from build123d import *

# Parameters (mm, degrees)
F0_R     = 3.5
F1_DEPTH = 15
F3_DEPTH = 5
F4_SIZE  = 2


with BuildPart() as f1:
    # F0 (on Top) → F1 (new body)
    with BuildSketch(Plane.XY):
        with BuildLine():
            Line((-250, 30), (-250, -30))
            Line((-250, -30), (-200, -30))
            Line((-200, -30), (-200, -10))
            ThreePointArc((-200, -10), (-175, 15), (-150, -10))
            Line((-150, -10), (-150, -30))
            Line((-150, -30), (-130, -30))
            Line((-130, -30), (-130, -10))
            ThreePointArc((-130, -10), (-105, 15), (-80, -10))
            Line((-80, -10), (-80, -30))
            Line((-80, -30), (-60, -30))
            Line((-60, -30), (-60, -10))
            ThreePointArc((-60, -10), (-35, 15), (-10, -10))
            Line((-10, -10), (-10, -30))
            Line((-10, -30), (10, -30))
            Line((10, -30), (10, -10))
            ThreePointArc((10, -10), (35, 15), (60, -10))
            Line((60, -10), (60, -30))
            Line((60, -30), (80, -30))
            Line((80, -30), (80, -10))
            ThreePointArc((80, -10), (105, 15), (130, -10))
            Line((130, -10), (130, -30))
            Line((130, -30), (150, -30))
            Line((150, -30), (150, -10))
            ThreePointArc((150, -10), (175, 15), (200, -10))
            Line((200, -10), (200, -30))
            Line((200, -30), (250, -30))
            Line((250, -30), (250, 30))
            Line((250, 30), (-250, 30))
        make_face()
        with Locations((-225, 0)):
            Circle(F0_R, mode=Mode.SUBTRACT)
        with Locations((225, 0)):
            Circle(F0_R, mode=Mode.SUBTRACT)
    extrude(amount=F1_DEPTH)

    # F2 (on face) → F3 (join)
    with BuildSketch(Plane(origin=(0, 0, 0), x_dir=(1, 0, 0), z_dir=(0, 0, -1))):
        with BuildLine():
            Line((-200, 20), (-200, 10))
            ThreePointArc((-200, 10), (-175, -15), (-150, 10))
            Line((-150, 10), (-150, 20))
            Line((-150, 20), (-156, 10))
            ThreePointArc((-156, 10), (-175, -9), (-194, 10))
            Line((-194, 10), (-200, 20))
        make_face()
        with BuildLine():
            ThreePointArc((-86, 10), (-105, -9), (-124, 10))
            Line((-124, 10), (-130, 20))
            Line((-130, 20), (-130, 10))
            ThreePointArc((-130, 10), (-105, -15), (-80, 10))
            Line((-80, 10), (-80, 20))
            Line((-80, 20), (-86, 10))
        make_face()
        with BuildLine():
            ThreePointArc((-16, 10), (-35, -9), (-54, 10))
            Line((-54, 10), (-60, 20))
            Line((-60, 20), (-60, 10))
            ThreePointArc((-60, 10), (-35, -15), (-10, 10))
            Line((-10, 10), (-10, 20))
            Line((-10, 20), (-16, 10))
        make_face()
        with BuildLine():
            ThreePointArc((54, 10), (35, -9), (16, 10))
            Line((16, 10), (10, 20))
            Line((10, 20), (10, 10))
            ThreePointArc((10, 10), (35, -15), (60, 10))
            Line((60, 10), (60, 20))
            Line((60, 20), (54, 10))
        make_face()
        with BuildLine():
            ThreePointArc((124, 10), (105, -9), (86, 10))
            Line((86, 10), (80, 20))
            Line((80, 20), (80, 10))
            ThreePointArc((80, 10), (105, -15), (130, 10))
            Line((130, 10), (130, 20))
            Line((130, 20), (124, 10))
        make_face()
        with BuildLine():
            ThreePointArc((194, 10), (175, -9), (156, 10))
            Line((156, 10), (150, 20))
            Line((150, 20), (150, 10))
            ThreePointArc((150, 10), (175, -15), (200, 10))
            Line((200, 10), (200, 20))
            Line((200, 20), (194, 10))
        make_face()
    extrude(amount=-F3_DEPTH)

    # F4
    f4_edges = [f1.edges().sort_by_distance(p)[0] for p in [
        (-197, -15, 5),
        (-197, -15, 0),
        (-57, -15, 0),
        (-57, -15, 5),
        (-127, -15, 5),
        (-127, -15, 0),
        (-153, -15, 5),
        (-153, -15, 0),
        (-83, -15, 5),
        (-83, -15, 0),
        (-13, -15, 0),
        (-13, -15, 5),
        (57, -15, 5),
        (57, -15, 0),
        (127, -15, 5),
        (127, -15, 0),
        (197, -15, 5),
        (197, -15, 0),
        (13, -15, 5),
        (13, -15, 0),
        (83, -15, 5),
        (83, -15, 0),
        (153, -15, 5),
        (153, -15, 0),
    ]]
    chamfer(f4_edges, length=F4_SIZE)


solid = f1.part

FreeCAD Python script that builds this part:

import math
import FreeCAD as App
import Part
import Sketcher
Q = App.Units.Quantity


def edges_at(feature, points):
    """Names of the edges that pass closest to the given points."""
    edges = feature.Shape.Edges
    near = lambda p: min(range(len(edges)), key=lambda i: edges[i].distToShape(Part.Vertex(*p))[0])
    return sorted({f"Edge{near(p) + 1}" for p in points})

doc = App.newDocument("Part")
params = doc.addObject("Spreadsheet::Sheet", "Params")
for row, (alias, value) in enumerate([
    ("sketch1_diameter", "7 mm"),
    ("sketch1_radius", "25 mm"),
    ("sketch1_width", "50 mm"),
    ("sketch1_width2", "20 mm"),
    ("sketch1_height", "60 mm"),
    ("pad1_length", "15 mm"),
    ("sketch2_radius", "25 mm"),
    ("sketch2_radius2", "19 mm"),
    ("sketch2_height", "10 mm"),
    ("pad2_length", "5 mm"),
    ("chamfer_size", "2 mm"),
], start=1):
    params.set(f"A{row}", alias)
    params.set(f"B{row}", "=" + value)
    params.setAlias(f"B{row}", alias)

body = doc.addObject("PartDesign::Body", "Body")

# Sketch on XY plane
sketch1 = body.newObject("Sketcher::SketchObject", "Sketch")
sketch1.AttachmentSupport = (doc.getObject("XY_Plane"), [""])
sketch1.MapMode = "FlatFace"
sketch1.addGeometry([
    Part.LineSegment(App.Vector(-250, 30, 0), App.Vector(-250, -30, 0)),  # 0
    Part.LineSegment(App.Vector(-250, -30, 0), App.Vector(-200, -30, 0)),  # 1
    Part.LineSegment(App.Vector(-200, -30, 0), App.Vector(-200, -10, 0)),  # 2
    Part.ArcOfCircle(Part.Circle(App.Vector(-175, -10, 0), App.Vector(0, 0, 1), 25), math.radians(0), math.radians(180)),  # 3
    Part.LineSegment(App.Vector(-150, -10, 0), App.Vector(-150, -30, 0)),  # 4
    Part.LineSegment(App.Vector(-150, -30, 0), App.Vector(-130, -30, 0)),  # 5
    Part.LineSegment(App.Vector(-130, -30, 0), App.Vector(-130, -10, 0)),  # 6
    Part.ArcOfCircle(Part.Circle(App.Vector(-105, -10, 0), App.Vector(0, 0, 1), 25), math.radians(0), math.radians(180)),  # 7
    Part.LineSegment(App.Vector(-80, -10, 0), App.Vector(-80, -30, 0)),  # 8
    Part.LineSegment(App.Vector(-80, -30, 0), App.Vector(-60, -30, 0)),  # 9
    Part.LineSegment(App.Vector(-60, -30, 0), App.Vector(-60, -10, 0)),  # 10
    Part.ArcOfCircle(Part.Circle(App.Vector(-35, -10, 0), App.Vector(0, 0, 1), 25), math.radians(0), math.radians(180)),  # 11
    Part.LineSegment(App.Vector(-10, -10, 0), App.Vector(-10, -30, 0)),  # 12
    Part.LineSegment(App.Vector(-10, -30, 0), App.Vector(10, -30, 0)),  # 13
    Part.LineSegment(App.Vector(10, -30, 0), App.Vector(10, -10, 0)),  # 14
    Part.ArcOfCircle(Part.Circle(App.Vector(35, -10, 0), App.Vector(0, 0, 1), 25), math.radians(0), math.radians(180)),  # 15
    Part.LineSegment(App.Vector(60, -10, 0), App.Vector(60, -30, 0)),  # 16
    Part.LineSegment(App.Vector(60, -30, 0), App.Vector(80, -30, 0)),  # 17
    Part.LineSegment(App.Vector(80, -30, 0), App.Vector(80, -10, 0)),  # 18
    Part.ArcOfCircle(Part.Circle(App.Vector(105, -10, 0), App.Vector(0, 0, 1), 25), math.radians(0), math.radians(180)),  # 19
    Part.LineSegment(App.Vector(130, -10, 0), App.Vector(130, -30, 0)),  # 20
    Part.LineSegment(App.Vector(130, -30, 0), App.Vector(150, -30, 0)),  # 21
    Part.LineSegment(App.Vector(150, -30, 0), App.Vector(150, -10, 0)),  # 22
    Part.ArcOfCircle(Part.Circle(App.Vector(175, -10, 0), App.Vector(0, 0, 1), 25), math.radians(0), math.radians(180)),  # 23
    Part.LineSegment(App.Vector(200, -10, 0), App.Vector(200, -30, 0)),  # 24
    Part.LineSegment(App.Vector(200, -30, 0), App.Vector(250, -30, 0)),  # 25
    Part.LineSegment(App.Vector(250, -30, 0), App.Vector(250, 30, 0)),  # 26
    Part.LineSegment(App.Vector(250, 30, 0), App.Vector(-250, 30, 0)),  # 27
    Part.Circle(App.Vector(-225, 0, 0), App.Vector(0, 0, 1), 3.5),  # 28
    Part.Circle(App.Vector(225, 0, 0), App.Vector(0, 0, 1), 3.5),  # 29
], False)
sketch1.addConstraint([
    Sketcher.Constraint("Coincident", 0, 2, 1, 1),
    Sketcher.Constraint("Coincident", 1, 2, 2, 1),
    Sketcher.Constraint("Tangent", 2, 2, 3, 2),
    Sketcher.Constraint("Tangent", 3, 1, 4, 1),
    Sketcher.Constraint("Coincident", 4, 2, 5, 1),
    Sketcher.Constraint("Coincident", 5, 2, 6, 1),
    Sketcher.Constraint("Tangent", 6, 2, 7, 2),
    Sketcher.Constraint("Tangent", 7, 1, 8, 1),
    Sketcher.Constraint("Coincident", 8, 2, 9, 1),
    Sketcher.Constraint("Coincident", 9, 2, 10, 1),
    Sketcher.Constraint("Tangent", 10, 2, 11, 2),
    Sketcher.Constraint("Tangent", 11, 1, 12, 1),
    Sketcher.Constraint("Coincident", 12, 2, 13, 1),
    Sketcher.Constraint("Coincident", 13, 2, 14, 1),
    Sketcher.Constraint("Tangent", 14, 2, 15, 2),
    Sketcher.Constraint("Tangent", 15, 1, 16, 1),
    Sketcher.Constraint("Coincident", 16, 2, 17, 1),
    Sketcher.Constraint("Coincident", 17, 2, 18, 1),
    Sketcher.Constraint("Tangent", 18, 2, 19, 2),
    Sketcher.Constraint("Tangent", 19, 1, 20, 1),
    Sketcher.Constraint("Coincident", 20, 2, 21, 1),
    Sketcher.Constraint("Coincident", 21, 2, 22, 1),
    Sketcher.Constraint("Tangent", 22, 2, 23, 2),
    Sketcher.Constraint("Tangent", 23, 1, 24, 1),
    Sketcher.Constraint("Coincident", 24, 2, 25, 1),
    Sketcher.Constraint("Coincident", 25, 2, 26, 1),
    Sketcher.Constraint("Coincident", 26, 2, 27, 1),
    Sketcher.Constraint("Coincident", 27, 2, 0, 1),
    Sketcher.Constraint("Vertical", 0),
    Sketcher.Constraint("Horizontal", 1),
    Sketcher.Constraint("Vertical", 2),
    Sketcher.Constraint("Vertical", 4),
    Sketcher.Constraint("Horizontal", 5),
    Sketcher.Constraint("Vertical", 6),
    Sketcher.Constraint("Vertical", 8),
    Sketcher.Constraint("Horizontal", 9),
    Sketcher.Constraint("Vertical", 10),
    Sketcher.Constraint("Vertical", 12),
    Sketcher.Constraint("Horizontal", 13),
    Sketcher.Constraint("Vertical", 14),
    Sketcher.Constraint("Vertical", 16),
    Sketcher.Constraint("Horizontal", 17),
    Sketcher.Constraint("Vertical", 18),
    Sketcher.Constraint("Vertical", 20),
    Sketcher.Constraint("Horizontal", 21),
    Sketcher.Constraint("Vertical", 22),
    Sketcher.Constraint("Vertical", 24),
    Sketcher.Constraint("Horizontal", 25),
    Sketcher.Constraint("Vertical", 26),
    Sketcher.Constraint("Horizontal", 27),
    Sketcher.Constraint("Equal", 3, 7),
    Sketcher.Constraint("Equal", 7, 11),
    Sketcher.Constraint("Equal", 11, 15),
    Sketcher.Constraint("Equal", 15, 19),
    Sketcher.Constraint("Equal", 19, 23),
    Sketcher.Constraint("Equal", 28, 29),
    Sketcher.Constraint("Symmetric", 28, 3, 29, 3, -1, 1),
    Sketcher.Constraint("Symmetric", 0, 2, 26, 2, -1, 1),
    Sketcher.Constraint("Symmetric", 11, 3, 15, 3, -2),
    Sketcher.Constraint("Symmetric", 7, 3, 19, 3, -2),
    Sketcher.Constraint("Symmetric", 3, 3, 23, 3, -2),
    Sketcher.Constraint("PointOnObject", 28, 3, -1),
    Sketcher.Constraint("Horizontal", 3, 3, 7, 3),
    Sketcher.Constraint("Horizontal", 7, 3, 11, 3),
    Sketcher.Constraint("Horizontal", 1, 2, 4, 2),
    Sketcher.Constraint("Horizontal", 5, 2, 8, 2),
    Sketcher.Constraint("Horizontal", 9, 2, 12, 2),
    Sketcher.Constraint("Horizontal", 13, 2, 16, 2),
    Sketcher.Constraint("Horizontal", 17, 2, 20, 2),
    Sketcher.Constraint("Horizontal", 21, 2, 24, 2),
    Sketcher.Constraint("Equal", 5, 9),
    Sketcher.Constraint("Equal", 9, 13),
    Sketcher.Constraint("Equal", 21, 2),
    Sketcher.Constraint("Diameter", 28, Q("7 mm")),
    Sketcher.Constraint("Radius", 3, Q("25 mm")),
    Sketcher.Constraint("DistanceX", 1, 1, 1, 2, Q("50 mm")),
    Sketcher.Constraint("DistanceX", 5, 1, 5, 2, Q("20 mm")),
    Sketcher.Constraint("DistanceY", 0, 2, 0, 1, Q("60 mm")),
    Sketcher.Constraint("DistanceX", 28, 3, -1, 1, Q("225 mm")),
])
sketch1.setExpression("Constraints[73]", "Params.sketch1_diameter")
sketch1.setExpression("Constraints[74]", "Params.sketch1_radius")
sketch1.setExpression("Constraints[75]", "Params.sketch1_width")
sketch1.setExpression("Constraints[76]", "Params.sketch1_width2")
sketch1.setExpression("Constraints[77]", "Params.sketch1_height")
pad1 = body.newObject("PartDesign::Pad", "Pad")
pad1.Profile = sketch1
pad1.setExpression("Length", "Params.pad1_length")

# Sketch on XY plane
sketch2 = body.newObject("Sketcher::SketchObject", "Sketch001")
sketch2.AttachmentSupport = (doc.getObject("XY_Plane"), [""])
sketch2.MapMode = "FlatFace"
sketch2.addGeometry([
    Part.LineSegment(App.Vector(-200, -20, 0), App.Vector(-200, -10, 0)),  # 0
    Part.ArcOfCircle(Part.Circle(App.Vector(-175, -10, 0), App.Vector(0, 0, 1), 25), math.radians(0), math.radians(180)),  # 1
    Part.LineSegment(App.Vector(-150, -10, 0), App.Vector(-150, -20, 0)),  # 2
    Part.LineSegment(App.Vector(-150, -20, 0), App.Vector(-156, -10, 0)),  # 3
    Part.ArcOfCircle(Part.Circle(App.Vector(-175, -10, 0), App.Vector(0, 0, 1), 19), math.radians(0), math.radians(180)),  # 4
    Part.LineSegment(App.Vector(-194, -10, 0), App.Vector(-200, -20, 0)),  # 5
    Part.ArcOfCircle(Part.Circle(App.Vector(-105, -10, 0), App.Vector(0, 0, 1), 19), math.radians(0), math.radians(180)),  # 6
    Part.LineSegment(App.Vector(-124, -10, 0), App.Vector(-130, -20, 0)),  # 7
    Part.LineSegment(App.Vector(-130, -20, 0), App.Vector(-130, -10, 0)),  # 8
    Part.ArcOfCircle(Part.Circle(App.Vector(-105, -10, 0), App.Vector(0, 0, 1), 25), math.radians(0), math.radians(180)),  # 9
    Part.LineSegment(App.Vector(-80, -10, 0), App.Vector(-80, -20, 0)),  # 10
    Part.LineSegment(App.Vector(-80, -20, 0), App.Vector(-86, -10, 0)),  # 11
    Part.ArcOfCircle(Part.Circle(App.Vector(-35, -10, 0), App.Vector(0, 0, 1), 19), math.radians(0), math.radians(180)),  # 12
    Part.LineSegment(App.Vector(-54, -10, 0), App.Vector(-60, -20, 0)),  # 13
    Part.LineSegment(App.Vector(-60, -20, 0), App.Vector(-60, -10, 0)),  # 14
    Part.ArcOfCircle(Part.Circle(App.Vector(-35, -10, 0), App.Vector(0, 0, 1), 25), math.radians(0), math.radians(180)),  # 15
    Part.LineSegment(App.Vector(-10, -10, 0), App.Vector(-10, -20, 0)),  # 16
    Part.LineSegment(App.Vector(-10, -20, 0), App.Vector(-16, -10, 0)),  # 17
    Part.ArcOfCircle(Part.Circle(App.Vector(35, -10, 0), App.Vector(0, 0, 1), 19), math.radians(0), math.radians(180)),  # 18
    Part.LineSegment(App.Vector(16, -10, 0), App.Vector(10, -20, 0)),  # 19
    Part.LineSegment(App.Vector(10, -20, 0), App.Vector(10, -10, 0)),  # 20
    Part.ArcOfCircle(Part.Circle(App.Vector(35, -10, 0), App.Vector(0, 0, 1), 25), math.radians(0), math.radians(180)),  # 21
    Part.LineSegment(App.Vector(60, -10, 0), App.Vector(60, -20, 0)),  # 22
    Part.LineSegment(App.Vector(60, -20, 0), App.Vector(54, -10, 0)),  # 23
    Part.ArcOfCircle(Part.Circle(App.Vector(105, -10, 0), App.Vector(0, 0, 1), 19), math.radians(0), math.radians(180)),  # 24
    Part.LineSegment(App.Vector(86, -10, 0), App.Vector(80, -20, 0)),  # 25
    Part.LineSegment(App.Vector(80, -20, 0), App.Vector(80, -10, 0)),  # 26
    Part.ArcOfCircle(Part.Circle(App.Vector(105, -10, 0), App.Vector(0, 0, 1), 25), math.radians(0), math.radians(180)),  # 27
    Part.LineSegment(App.Vector(130, -10, 0), App.Vector(130, -20, 0)),  # 28
    Part.LineSegment(App.Vector(130, -20, 0), App.Vector(124, -10, 0)),  # 29
    Part.ArcOfCircle(Part.Circle(App.Vector(175, -10, 0), App.Vector(0, 0, 1), 19), math.radians(0), math.radians(180)),  # 30
    Part.LineSegment(App.Vector(156, -10, 0), App.Vector(150, -20, 0)),  # 31
    Part.LineSegment(App.Vector(150, -20, 0), App.Vector(150, -10, 0)),  # 32
    Part.ArcOfCircle(Part.Circle(App.Vector(175, -10, 0), App.Vector(0, 0, 1), 25), math.radians(0), math.radians(180)),  # 33
    Part.LineSegment(App.Vector(200, -10, 0), App.Vector(200, -20, 0)),  # 34
    Part.LineSegment(App.Vector(200, -20, 0), App.Vector(194, -10, 0)),  # 35
], False)
sketch2.addConstraint([
    Sketcher.Constraint("Tangent", 0, 2, 1, 2),
    Sketcher.Constraint("Tangent", 1, 1, 2, 1),
    Sketcher.Constraint("Coincident", 2, 2, 3, 1),
    Sketcher.Constraint("Coincident", 3, 2, 4, 1),
    Sketcher.Constraint("Coincident", 4, 2, 5, 1),
    Sketcher.Constraint("Coincident", 5, 2, 0, 1),
    Sketcher.Constraint("Coincident", 6, 2, 7, 1),
    Sketcher.Constraint("Coincident", 7, 2, 8, 1),
    Sketcher.Constraint("Tangent", 8, 2, 9, 2),
    Sketcher.Constraint("Tangent", 9, 1, 10, 1),
    Sketcher.Constraint("Coincident", 10, 2, 11, 1),
    Sketcher.Constraint("Coincident", 11, 2, 6, 1),
    Sketcher.Constraint("Coincident", 12, 2, 13, 1),
    Sketcher.Constraint("Coincident", 13, 2, 14, 1),
    Sketcher.Constraint("Tangent", 14, 2, 15, 2),
    Sketcher.Constraint("Tangent", 15, 1, 16, 1),
    Sketcher.Constraint("Coincident", 16, 2, 17, 1),
    Sketcher.Constraint("Coincident", 17, 2, 12, 1),
    Sketcher.Constraint("Coincident", 18, 2, 19, 1),
    Sketcher.Constraint("Coincident", 19, 2, 20, 1),
    Sketcher.Constraint("Tangent", 20, 2, 21, 2),
    Sketcher.Constraint("Tangent", 21, 1, 22, 1),
    Sketcher.Constraint("Coincident", 22, 2, 23, 1),
    Sketcher.Constraint("Coincident", 23, 2, 18, 1),
    Sketcher.Constraint("Coincident", 24, 2, 25, 1),
    Sketcher.Constraint("Coincident", 25, 2, 26, 1),
    Sketcher.Constraint("Tangent", 26, 2, 27, 2),
    Sketcher.Constraint("Tangent", 27, 1, 28, 1),
    Sketcher.Constraint("Coincident", 28, 2, 29, 1),
    Sketcher.Constraint("Coincident", 29, 2, 24, 1),
    Sketcher.Constraint("Coincident", 30, 2, 31, 1),
    Sketcher.Constraint("Coincident", 31, 2, 32, 1),
    Sketcher.Constraint("Tangent", 32, 2, 33, 2),
    Sketcher.Constraint("Tangent", 33, 1, 34, 1),
    Sketcher.Constraint("Coincident", 34, 2, 35, 1),
    Sketcher.Constraint("Coincident", 35, 2, 30, 1),
    Sketcher.Constraint("Vertical", 0),
    Sketcher.Constraint("Vertical", 2),
    Sketcher.Constraint("Vertical", 8),
    Sketcher.Constraint("Vertical", 10),
    Sketcher.Constraint("Vertical", 14),
    Sketcher.Constraint("Vertical", 16),
    Sketcher.Constraint("Vertical", 20),
    Sketcher.Constraint("Vertical", 22),
    Sketcher.Constraint("Vertical", 26),
    Sketcher.Constraint("Vertical", 28),
    Sketcher.Constraint("Vertical", 32),
    Sketcher.Constraint("Vertical", 34),
    Sketcher.Constraint("Coincident", 4, 3, 1, 3),
    Sketcher.Constraint("Coincident", 9, 3, 6, 3),
    Sketcher.Constraint("Coincident", 15, 3, 12, 3),
    Sketcher.Constraint("Coincident", 21, 3, 18, 3),
    Sketcher.Constraint("Coincident", 27, 3, 24, 3),
    Sketcher.Constraint("Coincident", 33, 3, 30, 3),
    Sketcher.Constraint("Equal", 4, 6),
    Sketcher.Constraint("Equal", 1, 9),
    Sketcher.Constraint("Equal", 6, 12),
    Sketcher.Constraint("Equal", 9, 15),
    Sketcher.Constraint("Equal", 12, 18),
    Sketcher.Constraint("Equal", 15, 21),
    Sketcher.Constraint("Equal", 18, 24),
    Sketcher.Constraint("Equal", 21, 27),
    Sketcher.Constraint("Equal", 24, 30),
    Sketcher.Constraint("Equal", 27, 33),
    Sketcher.Constraint("Symmetric", 12, 3, 18, 3, -2),
    Sketcher.Constraint("Symmetric", 6, 3, 24, 3, -2),
    Sketcher.Constraint("Symmetric", 1, 3, 30, 3, -2),
    Sketcher.Constraint("Parallel", 5, 7),
    Sketcher.Constraint("Parallel", 3, 11),
    Sketcher.Constraint("Parallel", 7, 13),
    Sketcher.Constraint("Parallel", 11, 17),
    Sketcher.Constraint("Parallel", 13, 19),
    Sketcher.Constraint("Parallel", 17, 23),
    Sketcher.Constraint("Parallel", 19, 25),
    Sketcher.Constraint("Parallel", 23, 29),
    Sketcher.Constraint("Parallel", 25, 31),
    Sketcher.Constraint("Parallel", 29, 35),
    Sketcher.Constraint("Horizontal", 4, 3, 6, 3),
    Sketcher.Constraint("Horizontal", 9, 3, 12, 3),
    Sketcher.Constraint("Horizontal", 1, 1, 3, 2),
    Sketcher.Constraint("Horizontal", 3, 2, 4, 2),
    Sketcher.Constraint("Horizontal", 2, 2, 5, 2),
    Sketcher.Constraint("Horizontal", 4, 2, 6, 2),
    Sketcher.Constraint("Horizontal", 7, 2, 10, 2),
    Sketcher.Constraint("Horizontal", 11, 2, 12, 2),
    Sketcher.Constraint("Horizontal", 13, 2, 16, 2),
    Sketcher.Constraint("Horizontal", 17, 2, 18, 2),
    Sketcher.Constraint("Horizontal", 19, 2, 22, 2),
    Sketcher.Constraint("Horizontal", 23, 2, 24, 2),
    Sketcher.Constraint("Horizontal", 25, 2, 28, 2),
    Sketcher.Constraint("Horizontal", 29, 2, 30, 2),
    Sketcher.Constraint("Horizontal", 31, 2, 34, 2),
    Sketcher.Constraint("Radius", 1, Q("25 mm")),
    Sketcher.Constraint("Radius", 4, Q("19 mm")),
    Sketcher.Constraint("DistanceY", 0, 1, 0, 2, Q("10 mm")),
    Sketcher.Constraint("DistanceX", 1, 3, -1, 1, Q("175 mm")),
    Sketcher.Constraint("DistanceY", 1, 3, -1, 1, Q("10 mm")),
    Sketcher.Constraint("DistanceX", 6, 3, -1, 1, Q("105 mm")),
    Sketcher.Constraint("DistanceX", 12, 3, -1, 1, Q("35 mm")),
])
sketch2.setExpression("Constraints[92]", "Params.sketch2_radius")
sketch2.setExpression("Constraints[93]", "Params.sketch2_radius2")
sketch2.setExpression("Constraints[94]", "Params.sketch2_height")
pad2 = body.newObject("PartDesign::Pad", "Pad001")
pad2.Profile = sketch2
pad2.setExpression("Length", "Params.pad2_length")
doc.recompute()

chamfer = body.newObject("PartDesign::Chamfer", "Chamfer")
chamfer.Base = (pad2, edges_at(pad2, [
    (-197, -15, 5),
    (-197, -15, 0),
    (-57, -15, 0),
    (-57, -15, 5),
    (-127, -15, 5),
    (-127, -15, 0),
    (-153, -15, 5),
    (-153, -15, 0),
    (-83, -15, 5),
    (-83, -15, 0),
    (-13, -15, 0),
    (-13, -15, 5),
    (57, -15, 5),
    (57, -15, 0),
    (127, -15, 5),
    (127, -15, 0),
    (197, -15, 5),
    (197, -15, 0),
    (13, -15, 5),
    (13, -15, 0),
    (83, -15, 5),
    (83, -15, 0),
    (153, -15, 5),
    (153, -15, 0),
]))
chamfer.setExpression("Size", "Params.chamfer_size")

doc.recompute()
